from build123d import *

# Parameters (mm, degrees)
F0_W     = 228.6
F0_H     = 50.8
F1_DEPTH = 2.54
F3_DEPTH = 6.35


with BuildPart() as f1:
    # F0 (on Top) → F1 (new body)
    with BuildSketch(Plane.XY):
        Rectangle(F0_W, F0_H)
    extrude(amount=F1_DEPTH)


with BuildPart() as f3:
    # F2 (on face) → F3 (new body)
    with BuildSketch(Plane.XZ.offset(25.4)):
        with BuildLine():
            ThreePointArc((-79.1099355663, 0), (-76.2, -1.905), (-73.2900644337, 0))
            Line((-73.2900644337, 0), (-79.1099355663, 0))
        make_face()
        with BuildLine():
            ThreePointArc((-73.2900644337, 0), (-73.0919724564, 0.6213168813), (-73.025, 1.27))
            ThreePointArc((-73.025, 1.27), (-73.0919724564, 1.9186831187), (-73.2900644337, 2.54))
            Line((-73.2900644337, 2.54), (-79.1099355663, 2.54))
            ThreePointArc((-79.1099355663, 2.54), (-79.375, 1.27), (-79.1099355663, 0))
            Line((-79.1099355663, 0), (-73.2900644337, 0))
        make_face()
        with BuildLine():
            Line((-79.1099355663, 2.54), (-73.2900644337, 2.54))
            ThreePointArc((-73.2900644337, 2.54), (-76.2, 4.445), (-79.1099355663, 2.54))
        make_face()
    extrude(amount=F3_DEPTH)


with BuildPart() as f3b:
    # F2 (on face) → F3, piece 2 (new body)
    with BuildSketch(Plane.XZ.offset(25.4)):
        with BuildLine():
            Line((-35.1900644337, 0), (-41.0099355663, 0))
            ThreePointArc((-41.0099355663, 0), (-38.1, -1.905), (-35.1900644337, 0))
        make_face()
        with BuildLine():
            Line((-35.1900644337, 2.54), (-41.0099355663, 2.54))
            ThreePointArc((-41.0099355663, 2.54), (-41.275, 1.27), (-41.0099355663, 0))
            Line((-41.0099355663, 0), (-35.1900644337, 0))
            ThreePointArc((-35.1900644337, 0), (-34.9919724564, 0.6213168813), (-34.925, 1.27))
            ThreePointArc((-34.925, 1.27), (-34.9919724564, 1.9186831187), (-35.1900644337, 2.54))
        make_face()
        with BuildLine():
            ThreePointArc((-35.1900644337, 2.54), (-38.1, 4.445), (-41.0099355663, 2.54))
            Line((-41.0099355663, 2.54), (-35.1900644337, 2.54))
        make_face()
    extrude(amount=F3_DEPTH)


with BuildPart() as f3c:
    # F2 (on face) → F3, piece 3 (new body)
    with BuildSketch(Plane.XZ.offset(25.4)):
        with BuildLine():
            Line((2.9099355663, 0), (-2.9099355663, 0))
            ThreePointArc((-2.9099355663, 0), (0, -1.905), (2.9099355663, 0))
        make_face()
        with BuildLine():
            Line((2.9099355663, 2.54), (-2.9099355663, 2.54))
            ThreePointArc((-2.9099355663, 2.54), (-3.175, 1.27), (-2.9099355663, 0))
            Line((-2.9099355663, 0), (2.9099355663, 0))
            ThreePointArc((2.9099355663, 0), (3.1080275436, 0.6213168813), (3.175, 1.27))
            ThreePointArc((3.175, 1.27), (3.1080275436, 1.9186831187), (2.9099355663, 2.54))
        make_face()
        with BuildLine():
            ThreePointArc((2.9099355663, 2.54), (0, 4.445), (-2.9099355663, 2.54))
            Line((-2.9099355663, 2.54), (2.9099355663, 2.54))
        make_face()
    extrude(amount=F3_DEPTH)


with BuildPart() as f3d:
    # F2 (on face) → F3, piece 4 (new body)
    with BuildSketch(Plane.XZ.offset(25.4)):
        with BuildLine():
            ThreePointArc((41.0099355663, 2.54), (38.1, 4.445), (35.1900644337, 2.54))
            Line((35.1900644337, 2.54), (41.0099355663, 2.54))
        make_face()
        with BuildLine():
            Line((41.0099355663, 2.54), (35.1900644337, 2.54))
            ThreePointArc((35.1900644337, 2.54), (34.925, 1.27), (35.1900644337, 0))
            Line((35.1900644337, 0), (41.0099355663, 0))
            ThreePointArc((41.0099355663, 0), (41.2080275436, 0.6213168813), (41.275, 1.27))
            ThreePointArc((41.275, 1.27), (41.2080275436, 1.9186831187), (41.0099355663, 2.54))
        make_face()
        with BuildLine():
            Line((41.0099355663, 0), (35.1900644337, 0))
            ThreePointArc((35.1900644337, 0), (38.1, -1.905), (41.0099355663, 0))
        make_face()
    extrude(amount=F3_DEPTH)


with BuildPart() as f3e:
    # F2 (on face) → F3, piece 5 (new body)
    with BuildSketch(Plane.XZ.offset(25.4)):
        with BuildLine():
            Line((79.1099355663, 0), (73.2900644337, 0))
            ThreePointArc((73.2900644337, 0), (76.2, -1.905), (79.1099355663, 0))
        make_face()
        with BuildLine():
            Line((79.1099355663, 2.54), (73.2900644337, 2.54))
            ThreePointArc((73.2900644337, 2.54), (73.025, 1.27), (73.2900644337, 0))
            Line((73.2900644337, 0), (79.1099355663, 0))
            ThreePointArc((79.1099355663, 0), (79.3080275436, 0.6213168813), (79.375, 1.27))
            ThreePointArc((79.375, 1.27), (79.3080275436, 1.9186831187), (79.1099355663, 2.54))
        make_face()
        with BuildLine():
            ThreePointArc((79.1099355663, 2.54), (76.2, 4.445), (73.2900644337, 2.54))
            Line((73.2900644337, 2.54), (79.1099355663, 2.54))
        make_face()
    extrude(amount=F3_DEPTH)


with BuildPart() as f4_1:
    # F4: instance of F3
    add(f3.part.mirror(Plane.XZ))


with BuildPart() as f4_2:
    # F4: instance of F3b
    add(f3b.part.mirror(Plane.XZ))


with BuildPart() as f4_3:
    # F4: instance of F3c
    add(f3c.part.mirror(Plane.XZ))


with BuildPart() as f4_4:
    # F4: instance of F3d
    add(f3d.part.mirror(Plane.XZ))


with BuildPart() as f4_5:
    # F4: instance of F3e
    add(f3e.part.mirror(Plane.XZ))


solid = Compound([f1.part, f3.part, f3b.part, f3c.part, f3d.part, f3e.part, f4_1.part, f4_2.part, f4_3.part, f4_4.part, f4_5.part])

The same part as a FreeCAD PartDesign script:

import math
import FreeCAD as App
import Part
import Sketcher
Q = App.Units.Quantity


def add_polygon(sketch, points):
    """Adds a closed chain of lines whose ends are joined by coincident constraints."""
    first, n = sketch.GeometryCount, len(points)
    for a, b in zip(points, points[1:] + points[:1]):
        sketch.addGeometry(Part.LineSegment(App.Vector(*a, 0), App.Vector(*b, 0)), False)
    for i in range(n):
        sketch.addConstraint(Sketcher.Constraint("Coincident", first + i, 2, first + (i + 1) % n, 1))

doc = App.newDocument("Part")
body = doc.addObject("PartDesign::Body", "Body")

# Sketch on XY plane
sketch1 = doc.addObject("Sketcher::SketchObject", "Sketch")
body.addObject(sketch1)
sketch1.AttachmentSupport = (doc.XY_Plane, [""])
sketch1.MapMode = "FlatFace"
add_polygon(sketch1, [(-114.3, 25.4), (-114.3, -25.4), (114.3, -25.4), (114.3, 25.4)])  # lines 0-3
sketch1.addConstraint(Sketcher.Constraint("Vertical", 0))
sketch1.addConstraint(Sketcher.Constraint("Horizontal", 1))
sketch1.addConstraint(Sketcher.Constraint("Vertical", 2))
sketch1.addConstraint(Sketcher.Constraint("Horizontal", 3))
sketch1.addConstraint(Sketcher.Constraint("Symmetric", 0, 2, 2, 2, -1, 1))
sketch1.addConstraint(Sketcher.Constraint("DistanceX", 1, 1, 1, 2, Q("9 in")))
sketch1.addConstraint(Sketcher.Constraint("DistanceY", 0, 2, 0, 1, Q("2 in")))
pad1 = doc.addObject("PartDesign::Pad", "Pad")
body.addObject(pad1)
pad1.Profile = sketch1
pad1.Length = Q("0.1 in")
body2 = doc.addObject("PartDesign::Body", "Body001")

# Sketch on XZ plane
sketch2 = doc.addObject("Sketcher::SketchObject", "Sketch001")
body2.addObject(sketch2)
sketch2.AttachmentSupport = (doc.getObject("XZ_Plane001"), [""])
sketch2.MapMode = "FlatFace"
sketch2.AttachmentOffset = App.Placement(App.Vector(0, 0, 1 * 25.4), App.Rotation())
sketch2.addGeometry(Part.ArcOfCircle(Part.Circle(App.Vector(-76.2, 1.27, 0), App.Vector(0, 0, 1), 3.175), math.radians(-156.421822), math.radians(-23.578178)), False)
sketch2.addGeometry(Part.ArcOfCircle(Part.Circle(App.Vector(-76.2, 1.27, 0), App.Vector(0, 0, 1), 3.175), math.radians(-23.578178), math.radians(0)), False)
sketch2.addGeometry(Part.ArcOfCircle(Part.Circle(App.Vector(-76.2, 1.27, 0), App.Vector(0, 0, 1), 3.175), math.radians(0), math.radians(23.578178)), False)
sketch2.addGeometry(Part.ArcOfCircle(Part.Circle(App.Vector(-76.2, 1.27, 0), App.Vector(0, 0, 1), 3.175), math.radians(23.578178), math.radians(156.421822)), False)
sketch2.addGeometry(Part.ArcOfCircle(Part.Circle(App.Vector(-76.2, 1.27, 0), App.Vector(0, 0, 1), 3.175), math.radians(156.421822), math.radians(203.578178)), False)
sketch2.addConstraint(Sketcher.Constraint("Tangent", 0, 2, 1, 1))
sketch2.addConstraint(Sketcher.Constraint("Tangent", 1, 2, 2, 1))
sketch2.addConstraint(Sketcher.Constraint("Tangent", 2, 2, 3, 1))
sketch2.addConstraint(Sketcher.Constraint("Tangent", 3, 2, 4, 1))
sketch2.addConstraint(Sketcher.Constraint("Tangent", 4, 2, 0, 1))
sketch2.addConstraint(Sketcher.Constraint("Coincident", 2, 3, 0, 3))
sketch2.addConstraint(Sketcher.Constraint("PointOnObject", 0, 2, -1))
sketch2.addConstraint(Sketcher.Constraint("PointOnObject", 4, 2, -1))
sketch2.addConstraint(Sketcher.Constraint("Horizontal", 4, 3, 1, 2))
sketch2.addConstraint(Sketcher.Constraint("Horizontal", 2, 2, 3, 2))
sketch2.addConstraint(Sketcher.Constraint("Vertical", 0, 2, 2, 2))
sketch2.addConstraint(Sketcher.Constraint("DistanceX", 0, 3, -1, 1, Q("3 in")))
sketch2.addConstraint(Sketcher.Constraint("Radius", 0, Q("0.125 in")))
sketch2.addConstraint(Sketcher.Constraint("DistanceY", -1, 1, 2, 2, Q("0.1 in")))
pad2 = doc.addObject("PartDesign::Pad", "Pad001")
body2.addObject(pad2)
pad2.Profile = sketch2
pad2.Length = Q("0.25 in")
body3 = doc.addObject("PartDesign::Body", "Body002")

# Sketch on XZ plane
sketch3 = doc.addObject("Sketcher::SketchObject", "Sketch002")
body3.addObject(sketch3)
sketch3.AttachmentSupport = (doc.getObject("XZ_Plane002"), [""])
sketch3.MapMode = "FlatFace"
sketch3.AttachmentOffset = App.Placement(App.Vector(0, 0, 1 * 25.4), App.Rotation())
sketch3.addGeometry(Part.ArcOfCircle(Part.Circle(App.Vector(-38.1, 1.27, 0), App.Vector(0, 0, 1), 3.175), math.radians(-156.421822), math.radians(-23.578178)), False)
sketch3.addGeometry(Part.ArcOfCircle(Part.Circle(App.Vector(-38.1, 1.27, 0), App.Vector(0, 0, 1), 3.175), math.radians(-23.578178), math.radians(0)), False)
sketch3.addGeometry(Part.ArcOfCircle(Part.Circle(App.Vector(-38.1, 1.27, 0), App.Vector(0, 0, 1), 3.175), math.radians(0), math.radians(23.578178)), False)
sketch3.addGeometry(Part.ArcOfCircle(Part.Circle(App.Vector(-38.1, 1.27, 0), App.Vector(0, 0, 1), 3.175), math.radians(23.578178), math.radians(156.421822)), False)
sketch3.addGeometry(Part.ArcOfCircle(Part.Circle(App.Vector(-38.1, 1.27, 0), App.Vector(0, 0, 1), 3.175), math.radians(156.421822), math.radians(203.578178)), False)
sketch3.addConstraint(Sketcher.Constraint("Tangent", 0, 2, 1, 1))
sketch3.addConstraint(Sketcher.Constraint("Tangent", 1, 2, 2, 1))
sketch3.addConstraint(Sketcher.Constraint("Tangent", 2, 2, 3, 1))
sketch3.addConstraint(Sketcher.Constraint("Tangent", 3, 2, 4, 1))
sketch3.addConstraint(Sketcher.Constraint("Tangent", 4, 2, 0, 1))
sketch3.addConstraint(Sketcher.Constraint("Coincident", 2, 3, 0, 3))
sketch3.addConstraint(Sketcher.Constraint("PointOnObject", 0, 2, -1))
sketch3.addConstraint(Sketcher.Constraint("PointOnObject", 4, 2, -1))
sketch3.addConstraint(Sketcher.Constraint("Horizontal", 4, 3, 1, 2))
sketch3.addConstraint(Sketcher.Constraint("Horizontal", 2, 2, 3, 2))
sketch3.addConstraint(Sketcher.Constraint("Vertical", 0, 2, 2, 2))
sketch3.addConstraint(Sketcher.Constraint("Radius", 0, Q("0.125 in")))
sketch3.addConstraint(Sketcher.Constraint("DistanceX", 0, 3, -1, 1, Q("1.5 in")))
sketch3.addConstraint(Sketcher.Constraint("DistanceY", -1, 1, 2, 2, Q("0.1 in")))
pad3 = doc.addObject("PartDesign::Pad", "Pad002")
body3.addObject(pad3)
pad3.Profile = sketch3
pad3.Length = Q("0.25 in")
body4 = doc.addObject("PartDesign::Body", "Body003")

# Sketch on XZ plane
sketch4 = doc.addObject("Sketcher::SketchObject", "Sketch003")
body4.addObject(sketch4)
sketch4.AttachmentSupport = (doc.getObject("XZ_Plane003"), [""])
sketch4.MapMode = "FlatFace"
sketch4.AttachmentOffset = App.Placement(App.Vector(0, 0, 1 * 25.4), App.Rotation())
sketch4.addGeometry(Part.ArcOfCircle(Part.Circle(App.Vector(0, 1.27, 0), App.Vector(0, 0, 1), 3.175), math.radians(-156.421822), math.radians(-23.578178)), False)
sketch4.addGeometry(Part.ArcOfCircle(Part.Circle(App.Vector(0, 1.27, 0), App.Vector(0, 0, 1), 3.175), math.radians(-23.578178), math.radians(0)), False)
sketch4.addGeometry(Part.ArcOfCircle(Part.Circle(App.Vector(0, 1.27, 0), App.Vector(0, 0, 1), 3.175), math.radians(0), math.radians(23.578178)), False)
sketch4.addGeometry(Part.ArcOfCircle(Part.Circle(App.Vector(0, 1.27, 0), App.Vector(0, 0, 1), 3.175), math.radians(23.578178), math.radians(156.421822)), False)
sketch4.addGeometry(Part.ArcOfCircle(Part.Circle(App.Vector(0, 1.27, 0), App.Vector(0, 0, 1), 3.175), math.radians(156.421822), math.radians(203.578178)), False)
sketch4.addConstraint(Sketcher.Constraint("Tangent", 0, 2, 1, 1))
sketch4.addConstraint(Sketcher.Constraint("Tangent", 1, 2, 2, 1))
sketch4.addConstraint(Sketcher.Constraint("Tangent", 2, 2, 3, 1))
sketch4.addConstraint(Sketcher.Constraint("Tangent", 3, 2, 4, 1))
sketch4.addConstraint(Sketcher.Constraint("Tangent", 4, 2, 0, 1))
sketch4.addConstraint(Sketcher.Constraint("Coincident", 2, 3, 0, 3))
sketch4.addConstraint(Sketcher.Constraint("Symmetric", 0, 2, 4, 2, -1, 1))
sketch4.addConstraint(Sketcher.Constraint("Symmetric", 2, 2, 3, 2, -2))
sketch4.addConstraint(Sketcher.Constraint("Horizontal", 4, 3, 1, 2))
sketch4.addConstraint(Sketcher.Constraint("Vertical", 0, 2, 2, 2))
sketch4.addConstraint(Sketcher.Constraint("Radius", 0, Q("0.125 in")))
sketch4.addConstraint(Sketcher.Constraint("DistanceY", -1, 1, 2, 2, Q("0.1 in")))
pad4 = doc.addObject("PartDesign::Pad", "Pad003")
body4.addObject(pad4)
pad4.Profile = sketch4
pad4.Length = Q("0.25 in")
body5 = doc.addObject("PartDesign::Body", "Body004")

# Sketch on XZ plane
sketch5 = doc.addObject("Sketcher::SketchObject", "Sketch004")
body5.addObject(sketch5)
sketch5.AttachmentSupport = (doc.getObject("XZ_Plane004"), [""])
sketch5.MapMode = "FlatFace"
sketch5.AttachmentOffset = App.Placement(App.Vector(0, 0, 1 * 25.4), App.Rotation())
sketch5.addGeometry(Part.ArcOfCircle(Part.Circle(App.Vector(38.1, 1.27, 0), App.Vector(0, 0, 1), 3.175), math.radians(23.578178), math.radians(156.421822)), False)
sketch5.addGeometry(Part.ArcOfCircle(Part.Circle(App.Vector(38.1, 1.27, 0), App.Vector(0, 0, 1), 3.175), math.radians(156.421822), math.radians(203.578178)), False)
sketch5.addGeometry(Part.ArcOfCircle(Part.Circle(App.Vector(38.1, 1.27, 0), App.Vector(0, 0, 1), 3.175), math.radians(-156.421822), math.radians(-23.578178)), False)
sketch5.addGeometry(Part.ArcOfCircle(Part.Circle(App.Vector(38.1, 1.27, 0), App.Vector(0, 0, 1), 3.175), math.radians(-23.578178), math.radians(0)), False)
sketch5.addGeometry(Part.ArcOfCircle(Part.Circle(App.Vector(38.1, 1.27, 0), App.Vector(0, 0, 1), 3.175), math.radians(0), math.radians(23.578178)), False)
sketch5.addConstraint(Sketcher.Constraint("Tangent", 0, 2, 1, 1))
sketch5.addConstraint(Sketcher.Constraint("Tangent", 1, 2, 2, 1))
sketch5.addConstraint(Sketcher.Constraint("Tangent", 2, 2, 3, 1))
sketch5.addConstraint(Sketcher.Constraint("Tangent", 3, 2, 4, 1))
sketch5.addConstraint(Sketcher.Constraint("Tangent", 4, 2, 0, 1))
sketch5.addConstraint(Sketcher.Constraint("Coincident", 2, 3, 0, 3))
sketch5.addConstraint(Sketcher.Constraint("PointOnObject", 1, 2, -1))
sketch5.addConstraint(Sketcher.Constraint("PointOnObject", 2, 2, -1))
sketch5.addConstraint(Sketcher.Constraint("Horizontal", 4, 3, 3, 2))
sketch5.addConstraint(Sketcher.Constraint("Horizontal", 0, 2, 4, 2))
sketch5.addConstraint(Sketcher.Constraint("Vertical", 0, 2, 1, 2))
sketch5.addConstraint(Sketcher.Constraint("Radius", 0, Q("0.125 in")))
sketch5.addConstraint(Sketcher.Constraint("DistanceX", -1, 1, 0, 3, Q("1.5 in")))
sketch5.addConstraint(Sketcher.Constraint("DistanceY", -1, 1, 0, 2, Q("0.1 in")))
pad5 = doc.addObject("PartDesign::Pad", "Pad004")
body5.addObject(pad5)
pad5.Profile = sketch5
pad5.Length = Q("0.25 in")
body6 = doc.addObject("PartDesign::Body", "Body005")

# Sketch on XZ plane
sketch6 = doc.addObject("Sketcher::SketchObject", "Sketch005")
body6.addObject(sketch6)
sketch6.AttachmentSupport = (doc.getObject("XZ_Plane005"), [""])
sketch6.MapMode = "FlatFace"
sketch6.AttachmentOffset = App.Placement(App.Vector(0, 0, 1 * 25.4), App.Rotation())
sketch6.addGeometry(Part.ArcOfCircle(Part.Circle(App.Vector(76.2, 1.27, 0), App.Vector(0, 0, 1), 3.175), math.radians(-156.421822), math.radians(-23.578178)), False)
sketch6.addGeometry(Part.ArcOfCircle(Part.Circle(App.Vector(76.2, 1.27, 0), App.Vector(0, 0, 1), 3.175), math.radians(-23.578178), math.radians(0)), False)
sketch6.addGeometry(Part.ArcOfCircle(Part.Circle(App.Vector(76.2, 1.27, 0), App.Vector(0, 0, 1), 3.175), math.radians(0), math.radians(23.578178)), False)
sketch6.addGeometry(Part.ArcOfCircle(Part.Circle(App.Vector(76.2, 1.27, 0), App.Vector(0, 0, 1), 3.175), math.radians(23.578178), math.radians(156.421822)), False)
sketch6.addGeometry(Part.ArcOfCircle(Part.Circle(App.Vector(76.2, 1.27, 0), App.Vector(0, 0, 1), 3.175), math.radians(156.421822), math.radians(203.578178)), False)
sketch6.addConstraint(Sketcher.Constraint("Tangent", 0, 2, 1, 1))
sketch6.addConstraint(Sketcher.Constraint("Tangent", 1, 2, 2, 1))
sketch6.addConstraint(Sketcher.Constraint("Tangent", 2, 2, 3, 1))
sketch6.addConstraint(Sketcher.Constraint("Tangent", 3, 2, 4, 1))
sketch6.addConstraint(Sketcher.Constraint("Tangent", 4, 2, 0, 1))
sketch6.addConstraint(Sketcher.Constraint("Coincident", 2, 3, 0, 3))
sketch6.addConstraint(Sketcher.Constraint("PointOnObject", 0, 2, -1))
sketch6.addConstraint(Sketcher.Constraint("PointOnObject", 4, 2, -1))
sketch6.addConstraint(Sketcher.Constraint("Horizontal", 4, 3, 1, 2))
sketch6.addConstraint(Sketcher.Constraint("Horizontal", 2, 2, 3, 2))
sketch6.addConstraint(Sketcher.Constraint("Vertical", 0, 2, 2, 2))
sketch6.addConstraint(Sketcher.Constraint("DistanceX", -1, 1, 0, 3, Q("3 in")))
sketch6.addConstraint(Sketcher.Constraint("Radius", 0, Q("0.125 in")))
sketch6.addConstraint(Sketcher.Constraint("DistanceY", -1, 1, 2, 2, Q("0.1 in")))
pad6 = doc.addObject("PartDesign::Pad", "Pad005")
body6.addObject(pad6)
pad6.Profile = sketch6
pad6.Length = Q("0.25 in")
body7 = doc.addObject("PartDesign::Body", "Body006")
doc.recompute()

mirroring = doc.addObject("Part::Mirroring", "Mirroring")
mirroring.Source = body2
mirroring.Base = App.Vector(0, 0, 0)
mirroring.Normal = App.Vector(0, -1, 0)
body7.BaseFeature = mirroring
doc.recompute()
body8 = doc.addObject("PartDesign::Body", "Body007")
doc.recompute()

mirroring2 = doc.addObject("Part::Mirroring", "Mirroring001")
mirroring2.Source = body3
mirroring2.Base = App.Vector(0, 0, 0)
mirroring2.Normal = App.Vector(0, -1, 0)
body8.BaseFeature = mirroring2
doc.recompute()
body9 = doc.addObject("PartDesign::Body", "Body008")
doc.recompute()

mirroring3 = doc.addObject("Part::Mirroring", "Mirroring002")
mirroring3.Source = body4
mirroring3.Base = App.Vector(0, 0, 0)
mirroring3.Normal = App.Vector(0, -1, 0)
body9.BaseFeature = mirroring3
doc.recompute()
body10 = doc.addObject("PartDesign::Body", "Body009")
doc.recompute()

mirroring4 = doc.addObject("Part::Mirroring", "Mirroring003")
mirroring4.Source = body5
mirroring4.Base = App.Vector(0, 0, 0)
mirroring4.Normal = App.Vector(0, -1, 0)
body10.BaseFeature = mirroring4
doc.recompute()
body11 = doc.addObject("PartDesign::Body", "Body010")
doc.recompute()

mirroring5 = doc.addObject("Part::Mirroring", "Mirroring004")
mirroring5.Source = body6
mirroring5.Base = App.Vector(0, 0, 0)
mirroring5.Normal = App.Vector(0, -1, 0)
body11.BaseFeature = mirroring5
doc.recompute()
mirroring.Visibility = False
mirroring2.Visibility = False
mirroring3.Visibility = False
mirroring4.Visibility = False
mirroring5.Visibility = False

doc.recompute()
